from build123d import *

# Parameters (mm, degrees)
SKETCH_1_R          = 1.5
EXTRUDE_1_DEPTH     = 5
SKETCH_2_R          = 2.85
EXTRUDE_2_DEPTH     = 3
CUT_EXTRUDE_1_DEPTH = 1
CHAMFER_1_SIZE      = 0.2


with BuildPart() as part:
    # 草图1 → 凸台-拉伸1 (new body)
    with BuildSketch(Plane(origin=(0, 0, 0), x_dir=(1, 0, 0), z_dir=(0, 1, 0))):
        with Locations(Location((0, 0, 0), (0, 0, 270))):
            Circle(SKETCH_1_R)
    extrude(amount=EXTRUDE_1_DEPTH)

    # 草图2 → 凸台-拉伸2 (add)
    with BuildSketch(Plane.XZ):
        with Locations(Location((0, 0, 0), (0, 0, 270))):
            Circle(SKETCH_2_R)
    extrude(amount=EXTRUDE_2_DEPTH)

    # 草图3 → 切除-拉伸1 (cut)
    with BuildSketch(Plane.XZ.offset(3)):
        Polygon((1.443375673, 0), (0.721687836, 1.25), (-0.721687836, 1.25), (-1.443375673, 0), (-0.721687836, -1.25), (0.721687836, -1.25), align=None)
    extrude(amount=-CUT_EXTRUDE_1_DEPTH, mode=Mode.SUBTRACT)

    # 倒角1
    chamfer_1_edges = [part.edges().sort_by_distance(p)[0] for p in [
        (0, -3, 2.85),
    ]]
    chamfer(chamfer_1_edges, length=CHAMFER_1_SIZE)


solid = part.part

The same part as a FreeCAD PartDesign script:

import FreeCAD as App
import Part
import Sketcher

V = App.Vector
Q = App.Units.Quantity


def edges_at(feature, points):
    """Names of the edges that pass closest to the given points."""
    edges = feature.Shape.Edges
    near = lambda p: min(range(len(edges)), key=lambda i: edges[i].distToShape(Part.Vertex(*p))[0])
    return sorted({f"Edge{near(p) + 1}" for p in points})


def add_polygon(sketch, points):
    """Adds a closed chain of lines whose ends are joined by coincident constraints."""
    first, n = sketch.GeometryCount, len(points)
    for a, b in zip(points, points[1:] + points[:1]):
        sketch.addGeometry(Part.LineSegment(App.Vector(*a, 0), App.Vector(*b, 0)), False)
    for i in range(n):
        sketch.addConstraint(Sketcher.Constraint("Coincident", first + i, 2, first + (i + 1) % n, 1))

doc = App.newDocument("Part")
params = doc.addObject("Spreadsheet::Sheet", "Params")
for row, (alias, value) in enumerate([
    ("sketch1_diameter", "3 mm"),
    ("pad1_length", "5 mm"),
    ("sketch2_diameter", "5.7 mm"),
    ("pad2_length", "3 mm"),
    ("pocket1_length", "1 mm"),
    ("chamfer_size", "0.2 mm"),
], start=1):
    params.set(f"A{row}", alias)
    params.set(f"B{row}", "=" + value)
    params.setAlias(f"B{row}", alias)

body = doc.addObject("PartDesign::Body", "Body")

# Sketch on XZ plane
sketch1 = body.newObject("Sketcher::SketchObject", "Sketch")
sketch1.AttachmentSupport = (doc.getObject("XZ_Plane"), [""])
sketch1.MapMode = "FlatFace"
sketch1.addGeometry(Part.Circle(V(0, 0, 0), V(0, 0, 1), 1.5), False)
sketch1.addConstraint(Sketcher.Constraint("Coincident", 0, 3, -1, 1))
sketch1.addConstraint(Sketcher.Constraint("Diameter", 0, Q("3 mm")))
sketch1.setExpression("Constraints[1]", "Params.sketch1_diameter")
pad1 = body.newObject("PartDesign::Pad", "Pad")
pad1.Profile = sketch1
pad1.setExpression("Length", "Params.pad1_length")
pad1.Reversed = True

# Sketch on XZ plane
sketch2 = body.newObject("Sketcher::SketchObject", "Sketch001")
sketch2.AttachmentSupport = (doc.getObject("XZ_Plane"), [""])
sketch2.MapMode = "FlatFace"
sketch2.addGeometry(Part.Circle(V(0, 0, 0), V(0, 0, 1), 2.9), False)
sketch2.addConstraint(Sketcher.Constraint("Coincident", 0, 3, -1, 1))
sketch2.addConstraint(Sketcher.Constraint("Diameter", 0, Q("5.7 mm")))
sketch2.setExpression("Constraints[1]", "Params.sketch2_diameter")
pad2 = body.newObject("PartDesign::Pad", "Pad001")
pad2.Profile = sketch2
pad2.setExpression("Length", "Params.pad2_length")

# Sketch on XZ plane
sketch3 = body.newObject("Sketcher::SketchObject", "Sketch002")
sketch3.AttachmentSupport = (doc.getObject("XZ_Plane"), [""])
sketch3.MapMode = "FlatFace"
sketch3.AttachmentOffset = App.Placement(V(0, 0, 3), App.Rotation())
add_polygon(sketch3, [(1.4, 0), (0.7, 1.2), (-0.7, 1.2), (-1.4, 0), (-0.7, -1.2), (0.7, -1.2)])  # lines 0-5
sketch3.addConstraint(Sketcher.Constraint("Horizontal", 1))
sketch3.addConstraint(Sketcher.Constraint("Horizontal", 4))
sketch3.addConstraint(Sketcher.Constraint("Symmetric", 0, 2, 3, 2, -1, 1))
sketch3.addConstraint(Sketcher.Constraint("Symmetric", 2, 2, 5, 2, -1, 1))
sketch3.addConstraint(Sketcher.Constraint("PointOnObject", 2, 2, -1))
sketch3.addConstraint(Sketcher.Constraint("Parallel", 2, 5))
sketch3.addConstraint(Sketcher.Constraint("Vertical", 1, 2, 3, 2))
sketch3.addConstraint(Sketcher.Constraint("Angle", 0, Q("120 deg")))
sketch3.addConstraint(Sketcher.Constraint("DistanceY", 3, 2, 1, 2, Q("2.5 mm")))
sketch3.addConstraint(Sketcher.Constraint("DistanceX", 1, 2, 1, 1, Q("1.443376 mm")))
pocket1 = body.newObject("PartDesign::Pocket", "Pocket")
pocket1.Profile = sketch3
pocket1.setExpression("Length", "Params.pocket1_length")
doc.recompute()

chamfer = body.newObject("PartDesign::Chamfer", "Chamfer")
chamfer.Base = (pocket1, edges_at(pocket1, [(0, -3, 2.85)]))
chamfer.setExpression("Size", "Params.chamfer_size")

doc.recompute()
